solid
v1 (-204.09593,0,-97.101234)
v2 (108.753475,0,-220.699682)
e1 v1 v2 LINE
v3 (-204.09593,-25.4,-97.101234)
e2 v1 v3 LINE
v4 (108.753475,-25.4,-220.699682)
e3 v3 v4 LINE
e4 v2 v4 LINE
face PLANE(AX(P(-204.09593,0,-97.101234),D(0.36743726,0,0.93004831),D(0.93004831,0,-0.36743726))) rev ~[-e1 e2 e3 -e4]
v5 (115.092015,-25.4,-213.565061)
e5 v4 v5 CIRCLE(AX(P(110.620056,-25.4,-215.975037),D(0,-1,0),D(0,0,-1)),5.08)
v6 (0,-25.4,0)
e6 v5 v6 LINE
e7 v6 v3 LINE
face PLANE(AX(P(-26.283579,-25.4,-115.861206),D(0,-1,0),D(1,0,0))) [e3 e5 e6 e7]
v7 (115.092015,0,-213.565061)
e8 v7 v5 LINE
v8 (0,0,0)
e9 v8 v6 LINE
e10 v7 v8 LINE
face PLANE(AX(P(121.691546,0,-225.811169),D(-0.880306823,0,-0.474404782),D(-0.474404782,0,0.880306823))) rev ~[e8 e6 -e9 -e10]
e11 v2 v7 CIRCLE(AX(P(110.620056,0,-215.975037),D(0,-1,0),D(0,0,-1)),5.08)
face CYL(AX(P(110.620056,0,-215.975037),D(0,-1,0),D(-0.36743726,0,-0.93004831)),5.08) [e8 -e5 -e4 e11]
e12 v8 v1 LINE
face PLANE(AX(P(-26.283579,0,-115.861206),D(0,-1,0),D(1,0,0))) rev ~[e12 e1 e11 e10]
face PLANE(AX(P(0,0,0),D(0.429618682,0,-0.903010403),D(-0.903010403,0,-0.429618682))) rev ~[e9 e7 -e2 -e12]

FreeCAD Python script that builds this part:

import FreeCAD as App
import Part
import Sketcher

V = App.Vector
Q = App.Units.Quantity


def edges_at(feature, points):
    """Names of the edges that pass closest to the given points."""
    edges = feature.Shape.Edges
    near = lambda p: min(range(len(edges)), key=lambda i: edges[i].distToShape(Part.Vertex(*p))[0])
    return sorted({f"Edge{near(p) + 1}" for p in points})


def add_polygon(sketch, points):
    """Adds a closed chain of lines whose ends are joined by coincident constraints."""
    first, n = sketch.GeometryCount, len(points)
    for a, b in zip(points, points[1:] + points[:1]):
        sketch.addGeometry(Part.LineSegment(App.Vector(*a, 0), App.Vector(*b, 0)), False)
    for i in range(n):
        sketch.addConstraint(Sketcher.Constraint("Coincident", first + i, 2, first + (i + 1) % n, 1))

doc = App.newDocument("Part")
params = doc.addObject("Spreadsheet::Sheet", "Params")
for row, (alias, value) in enumerate([
    ("pad1_length", "1 in"),
    ("fillet_radius", "0.2 in"),
], start=1):
    params.set(f"A{row}", alias)
    params.set(f"B{row}", "=" + value)
    params.setAlias(f"B{row}", alias)

body = doc.addObject("PartDesign::Body", "Body")

# Sketch on XZ plane
sketch1 = body.newObject("Sketcher::SketchObject", "Sketch")
sketch1.AttachmentSupport = (doc.getObject("XZ_Plane"), [""])
sketch1.MapMode = "FlatFace"
add_polygon(sketch1, [(0, 0), (-204, -97), (122, -226)])  # lines 0-2
sketch1.addConstraint(Sketcher.Constraint("Coincident", 2, 2, -1, 1))
sketch1.addConstraint(Sketcher.Constraint("DistanceX", 0, 2, -1, 1, Q("204.09593 mm")))
sketch1.addConstraint(Sketcher.Constraint("DistanceY", 1, 2, -1, 1, Q("225.811169 mm")))
sketch1.addConstraint(Sketcher.Constraint("Distance", 0, Q("226.017252 mm")))
sketch1.addConstraint(Sketcher.Constraint("Distance", 1, Q("350.290918 mm")))
pad1 = body.newObject("PartDesign::Pad", "Pad")
pad1.Profile = sketch1
pad1.setExpression("Length", "Params.pad1_length")
doc.recompute()

fillet = body.newObject("PartDesign::Fillet", "Fillet")
fillet.Base = (pad1, edges_at(pad1, [(121.692, -12.7, -225.811)]))
fillet.setExpression("Radius", "Params.fillet_radius")

doc.recompute()
